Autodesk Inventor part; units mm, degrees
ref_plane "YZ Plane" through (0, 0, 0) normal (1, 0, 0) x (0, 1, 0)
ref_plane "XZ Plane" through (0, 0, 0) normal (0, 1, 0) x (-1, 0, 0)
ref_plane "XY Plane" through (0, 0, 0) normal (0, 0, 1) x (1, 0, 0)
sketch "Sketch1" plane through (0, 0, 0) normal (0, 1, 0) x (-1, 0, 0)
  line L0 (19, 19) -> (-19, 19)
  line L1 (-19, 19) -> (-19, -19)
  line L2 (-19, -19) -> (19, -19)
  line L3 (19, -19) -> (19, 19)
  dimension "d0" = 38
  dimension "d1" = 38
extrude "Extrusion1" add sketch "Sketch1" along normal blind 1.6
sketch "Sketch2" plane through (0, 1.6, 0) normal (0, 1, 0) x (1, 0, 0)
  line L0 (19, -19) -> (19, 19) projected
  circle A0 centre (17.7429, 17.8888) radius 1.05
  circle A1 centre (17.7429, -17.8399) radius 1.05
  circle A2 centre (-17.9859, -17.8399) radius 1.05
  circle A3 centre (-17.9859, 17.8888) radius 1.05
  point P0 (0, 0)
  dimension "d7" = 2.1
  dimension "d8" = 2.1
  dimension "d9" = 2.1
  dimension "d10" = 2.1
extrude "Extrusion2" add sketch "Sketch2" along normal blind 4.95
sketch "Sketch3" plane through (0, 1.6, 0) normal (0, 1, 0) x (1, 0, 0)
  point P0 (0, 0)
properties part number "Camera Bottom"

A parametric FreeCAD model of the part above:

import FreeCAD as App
import Part
import Sketcher

V = App.Vector


def add_polygon(sketch, points):
    """Adds a closed chain of lines whose ends are joined by coincident constraints."""
    first, n = sketch.GeometryCount, len(points)
    for a, b in zip(points, points[1:] + points[:1]):
        sketch.addGeometry(Part.LineSegment(App.Vector(*a, 0), App.Vector(*b, 0)), False)
    for i in range(n):
        sketch.addConstraint(Sketcher.Constraint("Coincident", first + i, 2, first + (i + 1) % n, 1))

doc = App.newDocument("Part")
body = doc.addObject("PartDesign::Body", "Body")

# Sketch on XZ plane
sketch1 = body.newObject("Sketcher::SketchObject", "Sketch")
sketch1.AttachmentSupport = (doc.getObject("XZ_Plane"), [""])
sketch1.MapMode = "FlatFace"
add_polygon(sketch1, [(-19, -19), (-19, 19), (19, 19), (19, -19)])  # lines 0-3
sketch1.addConstraint(Sketcher.Constraint("Vertical", 0))
sketch1.addConstraint(Sketcher.Constraint("Horizontal", 1))
sketch1.addConstraint(Sketcher.Constraint("Vertical", 2))
sketch1.addConstraint(Sketcher.Constraint("Horizontal", 3))
sketch1.addConstraint(Sketcher.Constraint("Symmetric", 0, 2, 2, 2, -1, 1))
sketch1.addConstraint(Sketcher.Constraint("Equal", 3, 0))
sketch1.addConstraint(Sketcher.Constraint("DistanceX", 1, 1, 1, 2, 38.0))
pad1 = body.newObject("PartDesign::Pad", "Pad")
pad1.Profile = sketch1
pad1.Length = 1.6
pad1.Reversed = True

# Sketch on XZ plane
sketch2 = body.newObject("Sketcher::SketchObject", "Sketch001")
sketch2.AttachmentSupport = (doc.getObject("XZ_Plane"), [""])
sketch2.MapMode = "FlatFace"
sketch2.AttachmentOffset = App.Placement(V(0, 0, -1.6), App.Rotation())
sketch2.addGeometry(Part.Circle(V(17.7, -17.9, 0), V(0, 0, 1), 1.1), False)
sketch2.addGeometry(Part.Circle(V(17.7, 17.8, 0), V(0, 0, 1), 1.1), False)
sketch2.addGeometry(Part.Circle(V(-18, 17.8, 0), V(0, 0, 1), 1.1), False)
sketch2.addGeometry(Part.Circle(V(-18, -17.9, 0), V(0, 0, 1), 1.1), False)
sketch2.addConstraint(Sketcher.Constraint("Equal", 0, 1))
sketch2.addConstraint(Sketcher.Constraint("Equal", 1, 2))
sketch2.addConstraint(Sketcher.Constraint("Equal", 2, 3))
sketch2.addConstraint(Sketcher.Constraint("Horizontal", 1, 3, 2, 3))
sketch2.addConstraint(Sketcher.Constraint("Horizontal", 0, 3, 3, 3))
sketch2.addConstraint(Sketcher.Constraint("Vertical", 0, 3, 1, 3))
sketch2.addConstraint(Sketcher.Constraint("Vertical", 2, 3, 3, 3))
sketch2.addConstraint(Sketcher.Constraint("Diameter", 0, 2.1))
sketch2.addConstraint(Sketcher.Constraint("DistanceY", -1, 1, 1, 3, 17.84))
sketch2.addConstraint(Sketcher.Constraint("DistanceX", -1, 1, 0, 3, 17.743))
sketch2.addConstraint(Sketcher.Constraint("DistanceX", 2, 3, -1, 1, 17.986))
sketch2.addConstraint(Sketcher.Constraint("DistanceY", 0, 3, -1, 1, 17.8888))
pad2 = body.newObject("PartDesign::Pad", "Pad001")
pad2.Profile = sketch2
pad2.Length = 4.95
pad2.Reversed = True

doc.recompute()
